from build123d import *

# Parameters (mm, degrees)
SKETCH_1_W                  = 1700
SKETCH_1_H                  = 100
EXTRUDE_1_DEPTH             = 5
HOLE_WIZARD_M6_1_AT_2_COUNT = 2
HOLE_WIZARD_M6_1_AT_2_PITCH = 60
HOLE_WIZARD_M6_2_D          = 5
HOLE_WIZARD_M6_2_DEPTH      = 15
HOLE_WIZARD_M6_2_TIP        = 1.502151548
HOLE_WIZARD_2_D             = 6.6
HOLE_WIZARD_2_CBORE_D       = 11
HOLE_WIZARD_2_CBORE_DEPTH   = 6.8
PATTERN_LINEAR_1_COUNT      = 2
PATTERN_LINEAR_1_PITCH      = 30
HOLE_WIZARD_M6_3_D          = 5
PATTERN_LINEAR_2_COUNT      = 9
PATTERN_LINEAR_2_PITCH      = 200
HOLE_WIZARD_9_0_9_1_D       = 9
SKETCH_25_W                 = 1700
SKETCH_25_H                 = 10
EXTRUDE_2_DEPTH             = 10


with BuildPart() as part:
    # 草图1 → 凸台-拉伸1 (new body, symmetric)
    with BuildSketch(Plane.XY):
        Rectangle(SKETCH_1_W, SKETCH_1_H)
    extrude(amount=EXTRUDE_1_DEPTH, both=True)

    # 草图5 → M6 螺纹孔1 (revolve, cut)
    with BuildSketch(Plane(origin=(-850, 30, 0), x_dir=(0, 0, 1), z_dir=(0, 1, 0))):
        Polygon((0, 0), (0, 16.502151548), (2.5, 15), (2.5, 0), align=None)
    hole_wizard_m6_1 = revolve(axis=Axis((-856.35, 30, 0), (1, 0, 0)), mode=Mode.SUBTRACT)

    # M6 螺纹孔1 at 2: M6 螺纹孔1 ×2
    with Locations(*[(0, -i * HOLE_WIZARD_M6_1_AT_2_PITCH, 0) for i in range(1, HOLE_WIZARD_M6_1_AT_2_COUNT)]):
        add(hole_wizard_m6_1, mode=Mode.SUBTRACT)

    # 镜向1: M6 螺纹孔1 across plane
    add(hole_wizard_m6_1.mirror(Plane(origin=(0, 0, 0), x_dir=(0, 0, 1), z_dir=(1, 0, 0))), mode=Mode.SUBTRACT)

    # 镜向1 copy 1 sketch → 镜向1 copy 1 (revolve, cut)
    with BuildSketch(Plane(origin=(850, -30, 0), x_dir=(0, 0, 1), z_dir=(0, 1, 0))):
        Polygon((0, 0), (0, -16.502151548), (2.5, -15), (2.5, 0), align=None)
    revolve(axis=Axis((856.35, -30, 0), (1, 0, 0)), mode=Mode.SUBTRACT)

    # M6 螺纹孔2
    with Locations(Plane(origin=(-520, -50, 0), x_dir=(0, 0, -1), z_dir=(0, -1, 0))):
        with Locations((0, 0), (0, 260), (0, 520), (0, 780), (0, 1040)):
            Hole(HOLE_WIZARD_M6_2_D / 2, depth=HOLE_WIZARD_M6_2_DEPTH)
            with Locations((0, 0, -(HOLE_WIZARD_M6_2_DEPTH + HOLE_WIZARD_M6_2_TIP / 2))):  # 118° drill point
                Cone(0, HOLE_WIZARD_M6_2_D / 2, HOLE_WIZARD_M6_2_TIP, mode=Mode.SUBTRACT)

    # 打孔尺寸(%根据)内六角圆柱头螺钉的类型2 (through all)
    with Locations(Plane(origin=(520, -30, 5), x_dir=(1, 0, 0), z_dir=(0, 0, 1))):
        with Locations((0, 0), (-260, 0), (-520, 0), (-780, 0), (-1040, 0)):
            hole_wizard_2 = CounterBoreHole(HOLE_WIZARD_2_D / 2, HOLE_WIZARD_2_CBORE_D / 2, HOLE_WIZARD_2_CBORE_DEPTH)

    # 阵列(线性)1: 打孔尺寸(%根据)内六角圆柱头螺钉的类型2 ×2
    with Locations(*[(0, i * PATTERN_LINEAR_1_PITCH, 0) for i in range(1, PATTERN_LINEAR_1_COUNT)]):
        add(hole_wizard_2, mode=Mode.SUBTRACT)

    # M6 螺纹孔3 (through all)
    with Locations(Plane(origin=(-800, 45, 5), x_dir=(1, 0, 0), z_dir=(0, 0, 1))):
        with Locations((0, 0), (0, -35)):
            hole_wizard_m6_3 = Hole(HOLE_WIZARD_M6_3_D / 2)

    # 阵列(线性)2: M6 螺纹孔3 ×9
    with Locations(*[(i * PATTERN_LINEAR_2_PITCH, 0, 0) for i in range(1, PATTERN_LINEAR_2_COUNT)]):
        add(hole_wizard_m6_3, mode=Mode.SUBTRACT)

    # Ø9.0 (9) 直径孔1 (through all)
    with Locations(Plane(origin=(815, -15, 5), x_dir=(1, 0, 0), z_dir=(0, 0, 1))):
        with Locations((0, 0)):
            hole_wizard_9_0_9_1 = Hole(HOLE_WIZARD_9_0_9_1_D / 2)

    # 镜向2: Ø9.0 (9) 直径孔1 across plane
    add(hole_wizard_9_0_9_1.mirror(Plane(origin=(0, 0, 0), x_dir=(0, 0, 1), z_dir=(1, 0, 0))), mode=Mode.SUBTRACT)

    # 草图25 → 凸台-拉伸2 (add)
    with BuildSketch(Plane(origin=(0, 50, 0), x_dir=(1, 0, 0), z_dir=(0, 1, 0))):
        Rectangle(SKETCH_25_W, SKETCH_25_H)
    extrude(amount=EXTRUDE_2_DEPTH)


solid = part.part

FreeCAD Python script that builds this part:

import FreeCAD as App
import Part
import Sketcher
from FreeCAD import Vector
Q = App.Units.Quantity

doc = App.newDocument("Part")
body = doc.addObject("PartDesign::Body", "Body")

sketch1 = body.newObject("Sketcher::SketchObject", "Sketch")
sketch1.AttachmentSupport = (doc.getObject("XY_Plane"), [""])
sketch1.MapMode = "FlatFace"
sketch1.addGeometry([
    Part.LineSegment(Vector(-850, 50, 0), Vector(-850, -50, 0)),
    Part.LineSegment(Vector(-850, -50, 0), Vector(850, -50, 0)),
    Part.LineSegment(Vector(850, -50, 0), Vector(850, 50, 0)),
    Part.LineSegment(Vector(850, 50, 0), Vector(-850, 50, 0)),
], False)
sketch1.addConstraint([
    Sketcher.Constraint("Coincident", 0, 2, 1, 1),
    Sketcher.Constraint("Coincident", 1, 2, 2, 1),
    Sketcher.Constraint("Coincident", 2, 2, 3, 1),
    Sketcher.Constraint("Coincident", 3, 2, 0, 1),
    Sketcher.Constraint("Vertical", 0),
    Sketcher.Constraint("Horizontal", 1),
    Sketcher.Constraint("Vertical", 2),
    Sketcher.Constraint("Horizontal", 3),
    Sketcher.Constraint("Symmetric", 0, 2, 2, 2, -1, 1),
    Sketcher.Constraint("DistanceX", 1, 1, 1, 2, Q("1700 mm")),
    Sketcher.Constraint("DistanceY", 0, 2, 0, 1, Q("100 mm")),
])
pad1 = body.newObject("PartDesign::Pad", "Pad")
pad1.Profile = sketch1
pad1.Length = 10
pad1.Midplane = True

sketch2 = body.newObject("Sketcher::SketchObject", "Sketch001")
sketch2.AttachmentSupport = (doc.getObject("XZ_Plane"), [""])
sketch2.MapMode = "FlatFace"
sketch2.AttachmentOffset = App.Placement(Vector(0, 0, -30), App.Rotation())
sketch2.addGeometry([
    Part.LineSegment(Vector(-833.5, 0, 0), Vector(-850, 0, 0)),
    Part.LineSegment(Vector(-850, 0, 0), Vector(-850, 2.5, 0)),
    Part.LineSegment(Vector(-850, 2.5, 0), Vector(-835, 2.5, 0)),
    Part.LineSegment(Vector(-835, 2.5, 0), Vector(-833.5, 0, 0)),
], False)
sketch2.addConstraint([
    Sketcher.Constraint("Coincident", 0, 2, 1, 1),
    Sketcher.Constraint("Coincident", 1, 2, 2, 1),
    Sketcher.Constraint("Coincident", 2, 2, 3, 1),
    Sketcher.Constraint("Coincident", 3, 2, 0, 1),
    Sketcher.Constraint("Horizontal", 0),
    Sketcher.Constraint("Vertical", 1),
    Sketcher.Constraint("Horizontal", 2),
    Sketcher.Constraint("PointOnObject", 0, 2, -1),
    Sketcher.Constraint("DistanceX", 2, 1, 2, 2, Q("15 mm")),
    Sketcher.Constraint("Angle", 3, Q("-59 deg")),
    Sketcher.Constraint("DistanceY", 1, 1, 1, 2, Q("2.5 mm")),
    Sketcher.Constraint("DistanceX", 0, 2, -1, 1, Q("850 mm")),
])
groove = body.newObject("PartDesign::Groove", "Groove")
groove.Profile = sketch2
groove.ReferenceAxis = (sketch2, ["H_Axis"])
groove.Angle = 360
doc.recompute()

linearpattern = body.newObject("PartDesign::LinearPattern", "LinearPattern")
linearpattern.Originals = [groove]
linearpattern.Direction = (doc.getObject("Y_Axis"), [""])
linearpattern.Mode = "offset"
linearpattern.Offset = 60
linearpattern.Occurrences = 2
linearpattern.Reversed = True
body.Tip = linearpattern
doc.recompute()

mirrored = body.newObject("PartDesign::Mirrored", "Mirrored")
mirrored.Originals = [groove]
mirrored.MirrorPlane = (doc.getObject("YZ_Plane"), [""])
body.Tip = mirrored

sketch3 = body.newObject("Sketcher::SketchObject", "Sketch002")
sketch3.AttachmentSupport = (doc.getObject("XZ_Plane"), [""])
sketch3.MapMode = "FlatFace"
sketch3.AttachmentOffset = App.Placement(Vector(0, 0, 30), App.Rotation())
sketch3.addGeometry([
    Part.LineSegment(Vector(850, 0, 0), Vector(833.5, 0, 0)),
    Part.LineSegment(Vector(833.5, 0, 0), Vector(835, 2.5, 0)),
    Part.LineSegment(Vector(835, 2.5, 0), Vector(850, 2.5, 0)),
    Part.LineSegment(Vector(850, 2.5, 0), Vector(850, 0, 0)),
], False)
sketch3.addConstraint([
    Sketcher.Constraint("Coincident", 0, 2, 1, 1),
    Sketcher.Constraint("Coincident", 1, 2, 2, 1),
    Sketcher.Constraint("Coincident", 2, 2, 3, 1),
    Sketcher.Constraint("Coincident", 3, 2, 0, 1),
    Sketcher.Constraint("Horizontal", 0),
    Sketcher.Constraint("Horizontal", 2),
    Sketcher.Constraint("Vertical", 3),
    Sketcher.Constraint("PointOnObject", 0, 2, -1),
    Sketcher.Constraint("DistanceX", 2, 1, 2, 2, Q("15 mm")),
    Sketcher.Constraint("Angle", 1, Q("59 deg")),
    Sketcher.Constraint("DistanceY", 3, 2, 3, 1, Q("2.5 mm")),
    Sketcher.Constraint("DistanceX", -1, 1, 1, 2, Q("835 mm")),
])
groove2 = body.newObject("PartDesign::Groove", "Groove001")
groove2.Profile = sketch3
groove2.ReferenceAxis = (sketch3, ["H_Axis"])
groove2.Angle = 360

sketch4 = body.newObject("Sketcher::SketchObject", "Sketch003")
sketch4.AttachmentSupport = (doc.getObject("XZ_Plane"), [""])
sketch4.MapMode = "FlatFace"
sketch4.AttachmentOffset = App.Placement(Vector(0, 0, 50), App.Rotation())
sketch4.addGeometry([
    Part.Circle(Vector(-520, 0, 0), Vector(0, 0, 1), 2.5),
    Part.Circle(Vector(-260, 0, 0), Vector(0, 0, 1), 2.5),
    Part.Circle(Vector(0, 0, 0), Vector(0, 0, 1), 2.5),
    Part.Circle(Vector(260, 0, 0), Vector(0, 0, 1), 2.5),
    Part.Circle(Vector(520, 0, 0), Vector(0, 0, 1), 2.5),
], False)
sketch4.addConstraint([
    Sketcher.Constraint("Coincident", 2, 3, -1, 1),
    Sketcher.Constraint("Equal", 0, 1),
    Sketcher.Constraint("Equal", 1, 2),
    Sketcher.Constraint("Equal", 2, 3),
    Sketcher.Constraint("Equal", 3, 4),
    Sketcher.Constraint("Symmetric", 1, 3, 3, 3, -1, 1),
    Sketcher.Constraint("Symmetric", 0, 3, 4, 3, -1, 1),
    Sketcher.Constraint("PointOnObject", 0, 3, -1),
    Sketcher.Constraint("PointOnObject", 1, 3, -1),
    Sketcher.Constraint("Diameter", 0, Q("5 mm")),
    Sketcher.Constraint("DistanceX", 0, 3, -1, 1, Q("520 mm")),
    Sketcher.Constraint("DistanceX", 1, 3, -1, 1, Q("260 mm")),
])
doc.recompute()
hole = body.newObject("PartDesign::Hole", "Hole")
hole.Profile = sketch4
hole.ThreadType = "None"
hole.Diameter = 5
hole.DepthType = "Dimension"
hole.Depth = 15
hole.DrillPoint = "Angled"
hole.DrillPointAngle = 118

sketch5 = body.newObject("Sketcher::SketchObject", "Sketch004")
sketch5.AttachmentSupport = (doc.getObject("XY_Plane"), [""])
sketch5.MapMode = "FlatFace"
sketch5.AttachmentOffset = App.Placement(Vector(0, 0, 5), App.Rotation())
sketch5.addGeometry([
    Part.Circle(Vector(520, -30, 0), Vector(0, 0, 1), 3.3),
    Part.Circle(Vector(260, -30, 0), Vector(0, 0, 1), 3.3),
    Part.Circle(Vector(0, -30, 0), Vector(0, 0, 1), 3.3),
    Part.Circle(Vector(-260, -30, 0), Vector(0, 0, 1), 3.3),
    Part.Circle(Vector(-520, -30, 0), Vector(0, 0, 1), 3.3),
], False)
sketch5.addConstraint([
    Sketcher.Constraint("Equal", 0, 1),
    Sketcher.Constraint("Equal", 1, 2),
    Sketcher.Constraint("Equal", 2, 3),
    Sketcher.Constraint("Equal", 3, 4),
    Sketcher.Constraint("Symmetric", 1, 3, 3, 3, -2),
    Sketcher.Constraint("Symmetric", 0, 3, 4, 3, -2),
    Sketcher.Constraint("PointOnObject", 2, 3, -2),
    Sketcher.Constraint("Horizontal", 0, 3, 1, 3),
    Sketcher.Constraint("Horizontal", 1, 3, 2, 3),
    Sketcher.Constraint("Diameter", 0, Q("6.6 mm")),
    Sketcher.Constraint("DistanceX", -1, 1, 0, 3, Q("520 mm")),
    Sketcher.Constraint("DistanceY", 0, 3, -1, 1, Q("30 mm")),
    Sketcher.Constraint("DistanceX", -1, 1, 1, 3, Q("260 mm")),
])
doc.recompute()
hole2 = body.newObject("PartDesign::Hole", "Hole001")
hole2.Profile = sketch5
hole2.ThreadType = "None"
hole2.Diameter = 6.6
hole2.DepthType = "ThroughAll"
hole2.HoleCutType = "Counterbore"
hole2.HoleCutDiameter = 11
hole2.HoleCutDepth = 6.8
doc.recompute()

linearpattern2 = body.newObject("PartDesign::LinearPattern", "LinearPattern001")
linearpattern2.Originals = [hole2]
linearpattern2.Direction = (doc.getObject("Y_Axis"), [""])
linearpattern2.Mode = "offset"
linearpattern2.Offset = 30
linearpattern2.Occurrences = 2
body.Tip = linearpattern2

sketch6 = body.newObject("Sketcher::SketchObject", "Sketch005")
sketch6.AttachmentSupport = (doc.getObject("XY_Plane"), [""])
sketch6.MapMode = "FlatFace"
sketch6.AttachmentOffset = App.Placement(Vector(0, 0, 5), App.Rotation())
sketch6.addGeometry([
    Part.Circle(Vector(-800, 45, 0), Vector(0, 0, 1), 2.5),
    Part.Circle(Vector(-800, 10, 0), Vector(0, 0, 1), 2.5),
], False)
sketch6.addConstraint([
    Sketcher.Constraint("Equal", 0, 1),
    Sketcher.Constraint("Vertical", 0, 3, 1, 3),
    Sketcher.Constraint("Diameter", 0, Q("5 mm")),
    Sketcher.Constraint("DistanceX", 0, 3, -1, 1, Q("800 mm")),
    Sketcher.Constraint("DistanceY", -1, 1, 0, 3, Q("45 mm")),
    Sketcher.Constraint("DistanceY", -1, 1, 1, 3, Q("10 mm")),
])
doc.recompute()
hole3 = body.newObject("PartDesign::Hole", "Hole002")
hole3.Profile = sketch6
hole3.ThreadType = "None"
hole3.Diameter = 5
hole3.DepthType = "ThroughAll"
doc.recompute()

linearpattern3 = body.newObject("PartDesign::LinearPattern", "LinearPattern002")
linearpattern3.Originals = [hole3]
linearpattern3.Direction = (doc.getObject("X_Axis"), [""])
linearpattern3.Mode = "offset"
linearpattern3.Offset = 200
linearpattern3.Occurrences = 9
body.Tip = linearpattern3

sketch7 = body.newObject("Sketcher::SketchObject", "Sketch006")
sketch7.AttachmentSupport = (doc.getObject("XY_Plane"), [""])
sketch7.MapMode = "FlatFace"
sketch7.AttachmentOffset = App.Placement(Vector(0, 0, 5), App.Rotation())
sketch7.addGeometry(Part.Circle(Vector(815, -15, 0), Vector(0, 0, 1), 4.5), False)
sketch7.addConstraint([
    Sketcher.Constraint("Diameter", 0, Q("9 mm")),
    Sketcher.Constraint("DistanceX", -1, 1, 0, 3, Q("815 mm")),
    Sketcher.Constraint("DistanceY", 0, 3, -1, 1, Q("15 mm")),
])
doc.recompute()
hole4 = body.newObject("PartDesign::Hole", "Hole003")
hole4.Profile = sketch7
hole4.ThreadType = "None"
hole4.Diameter = 9
hole4.DepthType = "ThroughAll"
doc.recompute()

mirrored2 = body.newObject("PartDesign::Mirrored", "Mirrored001")
mirrored2.Originals = [hole4]
mirrored2.MirrorPlane = (doc.getObject("YZ_Plane"), [""])
body.Tip = mirrored2

sketch8 = body.newObject("Sketcher::SketchObject", "Sketch007")
sketch8.AttachmentSupport = (doc.getObject("XZ_Plane"), [""])
sketch8.MapMode = "FlatFace"
sketch8.AttachmentOffset = App.Placement(Vector(0, 0, -50), App.Rotation())
sketch8.addGeometry([
    Part.LineSegment(Vector(-850, -5, 0), Vector(-850, 5, 0)),
    Part.LineSegment(Vector(-850, 5, 0), Vector(850, 5, 0)),
    Part.LineSegment(Vector(850, 5, 0), Vector(850, -5, 0)),
    Part.LineSegment(Vector(850, -5, 0), Vector(-850, -5, 0)),
], False)
sketch8.addConstraint([
    Sketcher.Constraint("Coincident", 0, 2, 1, 1),
    Sketcher.Constraint("Coincident", 1, 2, 2, 1),
    Sketcher.Constraint("Coincident", 2, 2, 3, 1),
    Sketcher.Constraint("Coincident", 3, 2, 0, 1),
    Sketcher.Constraint("Vertical", 0),
    Sketcher.Constraint("Horizontal", 1),
    Sketcher.Constraint("Vertical", 2),
    Sketcher.Constraint("Horizontal", 3),
    Sketcher.Constraint("Symmetric", 0, 2, 2, 2, -1, 1),
    Sketcher.Constraint("DistanceX", 1, 1, 1, 2, Q("1700 mm")),
    Sketcher.Constraint("DistanceY", 0, 1, 0, 2, Q("10 mm")),
])
pad2 = body.newObject("PartDesign::Pad", "Pad001")
pad2.Profile = sketch8
pad2.Length = 10
pad2.Reversed = True

doc.recompute()
